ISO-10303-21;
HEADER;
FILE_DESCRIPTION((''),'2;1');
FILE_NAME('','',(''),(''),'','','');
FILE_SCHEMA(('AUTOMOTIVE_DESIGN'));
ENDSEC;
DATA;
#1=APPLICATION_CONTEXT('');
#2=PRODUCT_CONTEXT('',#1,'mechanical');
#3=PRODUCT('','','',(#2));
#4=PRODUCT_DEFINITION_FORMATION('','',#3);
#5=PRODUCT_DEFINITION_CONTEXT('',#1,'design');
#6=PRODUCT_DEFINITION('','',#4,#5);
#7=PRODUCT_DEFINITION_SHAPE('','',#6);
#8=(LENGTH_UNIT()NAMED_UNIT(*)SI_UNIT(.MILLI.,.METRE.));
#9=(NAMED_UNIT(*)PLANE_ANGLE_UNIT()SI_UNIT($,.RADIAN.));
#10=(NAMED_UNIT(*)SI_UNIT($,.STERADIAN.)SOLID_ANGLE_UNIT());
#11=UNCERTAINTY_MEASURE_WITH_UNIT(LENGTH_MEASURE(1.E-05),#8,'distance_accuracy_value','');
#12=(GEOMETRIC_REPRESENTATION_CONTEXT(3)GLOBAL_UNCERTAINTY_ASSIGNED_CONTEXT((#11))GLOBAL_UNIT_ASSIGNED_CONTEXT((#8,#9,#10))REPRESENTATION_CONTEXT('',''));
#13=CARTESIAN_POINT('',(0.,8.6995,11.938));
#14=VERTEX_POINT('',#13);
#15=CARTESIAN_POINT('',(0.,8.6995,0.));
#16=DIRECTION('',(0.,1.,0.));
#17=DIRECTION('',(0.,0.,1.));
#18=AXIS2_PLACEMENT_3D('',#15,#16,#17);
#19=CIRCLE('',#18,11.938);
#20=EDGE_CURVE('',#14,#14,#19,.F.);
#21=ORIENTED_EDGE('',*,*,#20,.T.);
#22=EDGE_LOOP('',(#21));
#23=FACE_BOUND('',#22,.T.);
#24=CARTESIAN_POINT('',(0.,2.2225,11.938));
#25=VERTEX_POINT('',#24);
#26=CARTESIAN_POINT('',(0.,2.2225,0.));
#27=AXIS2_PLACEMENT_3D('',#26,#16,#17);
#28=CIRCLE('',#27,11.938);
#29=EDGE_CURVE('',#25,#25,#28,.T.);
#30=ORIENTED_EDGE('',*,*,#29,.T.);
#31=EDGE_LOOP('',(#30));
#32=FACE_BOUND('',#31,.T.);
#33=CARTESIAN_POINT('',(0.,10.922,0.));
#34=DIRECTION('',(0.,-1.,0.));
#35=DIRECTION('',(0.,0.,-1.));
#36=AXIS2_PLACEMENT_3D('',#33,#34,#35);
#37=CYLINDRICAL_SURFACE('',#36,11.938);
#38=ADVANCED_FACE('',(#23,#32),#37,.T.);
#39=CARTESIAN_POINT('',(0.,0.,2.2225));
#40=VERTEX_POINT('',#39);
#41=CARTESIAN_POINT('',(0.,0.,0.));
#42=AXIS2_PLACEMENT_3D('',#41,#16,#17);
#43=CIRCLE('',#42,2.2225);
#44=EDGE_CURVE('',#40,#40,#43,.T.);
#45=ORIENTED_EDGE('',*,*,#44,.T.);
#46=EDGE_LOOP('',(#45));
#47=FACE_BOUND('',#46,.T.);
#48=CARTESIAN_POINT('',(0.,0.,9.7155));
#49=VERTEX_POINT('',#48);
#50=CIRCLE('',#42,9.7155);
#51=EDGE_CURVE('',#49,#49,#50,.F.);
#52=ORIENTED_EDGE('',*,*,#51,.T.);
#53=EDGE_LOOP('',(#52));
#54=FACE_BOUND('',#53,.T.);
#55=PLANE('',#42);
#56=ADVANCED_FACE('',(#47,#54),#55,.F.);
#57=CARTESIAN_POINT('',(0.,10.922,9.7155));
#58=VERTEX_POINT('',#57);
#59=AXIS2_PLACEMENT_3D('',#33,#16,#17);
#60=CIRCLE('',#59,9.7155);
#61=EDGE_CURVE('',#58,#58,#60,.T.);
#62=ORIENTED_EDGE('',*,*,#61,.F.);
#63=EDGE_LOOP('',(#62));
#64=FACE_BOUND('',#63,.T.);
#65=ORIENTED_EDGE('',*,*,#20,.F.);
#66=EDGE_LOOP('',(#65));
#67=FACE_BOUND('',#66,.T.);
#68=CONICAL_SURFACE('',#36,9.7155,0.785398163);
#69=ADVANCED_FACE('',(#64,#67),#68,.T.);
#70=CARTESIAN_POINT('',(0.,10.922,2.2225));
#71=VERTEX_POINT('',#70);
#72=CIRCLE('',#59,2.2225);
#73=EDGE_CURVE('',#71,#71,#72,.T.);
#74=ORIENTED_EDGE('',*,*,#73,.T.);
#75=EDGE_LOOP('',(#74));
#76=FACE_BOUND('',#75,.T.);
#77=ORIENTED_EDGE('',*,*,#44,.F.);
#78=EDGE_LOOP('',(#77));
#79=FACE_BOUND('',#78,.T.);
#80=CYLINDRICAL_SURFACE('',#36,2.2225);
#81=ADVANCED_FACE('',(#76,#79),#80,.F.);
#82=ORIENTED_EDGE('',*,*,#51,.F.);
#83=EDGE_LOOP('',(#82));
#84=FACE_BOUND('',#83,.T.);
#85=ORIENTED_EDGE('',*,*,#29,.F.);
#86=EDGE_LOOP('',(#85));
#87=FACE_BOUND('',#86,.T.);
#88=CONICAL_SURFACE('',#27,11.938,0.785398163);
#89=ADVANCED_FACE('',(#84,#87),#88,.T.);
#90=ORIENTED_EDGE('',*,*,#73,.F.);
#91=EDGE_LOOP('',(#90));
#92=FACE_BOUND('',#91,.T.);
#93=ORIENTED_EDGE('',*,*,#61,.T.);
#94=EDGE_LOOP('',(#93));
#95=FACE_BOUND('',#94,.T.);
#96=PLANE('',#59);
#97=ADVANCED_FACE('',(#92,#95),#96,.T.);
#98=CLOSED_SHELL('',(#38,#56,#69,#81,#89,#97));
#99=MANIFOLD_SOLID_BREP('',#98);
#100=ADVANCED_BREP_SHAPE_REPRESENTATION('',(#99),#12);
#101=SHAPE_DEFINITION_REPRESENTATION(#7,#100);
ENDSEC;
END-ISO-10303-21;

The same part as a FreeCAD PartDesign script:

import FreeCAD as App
import Part
import Sketcher

V = App.Vector
Q = App.Units.Quantity


def edges_at(feature, points):
    """Names of the edges that pass closest to the given points."""
    edges = feature.Shape.Edges
    near = lambda p: min(range(len(edges)), key=lambda i: edges[i].distToShape(Part.Vertex(*p))[0])
    return sorted({f"Edge{near(p) + 1}" for p in points})

doc = App.newDocument("Part")
body = doc.addObject("PartDesign::Body", "Body")

# Sketch on XZ plane
sketch1 = body.newObject("Sketcher::SketchObject", "Sketch")
sketch1.AttachmentSupport = (doc.getObject("XZ_Plane"), [""])
sketch1.MapMode = "FlatFace"
sketch1.addGeometry([
    Part.Circle(V(0, 0, 0), V(0, 0, 1), 11.938),
    Part.Circle(V(0, 0, 0), V(0, 0, 1), 2.2225),
], False)
sketch1.addConstraint([
    Sketcher.Constraint("Coincident", 0, 3, -1, 1),
    Sketcher.Constraint("Coincident", 1, 3, -1, 1),
    Sketcher.Constraint("Diameter", 0, Q("0.94 in")),
    Sketcher.Constraint("Diameter", 1, Q("0.175 in")),
])
pad1 = body.newObject("PartDesign::Pad", "Pad")
pad1.Profile = sketch1
pad1.Length = Q("0.43 in")
pad1.Reversed = True
doc.recompute()

chamfer = body.newObject("PartDesign::Chamfer", "Chamfer")
chamfer.Base = (pad1, edges_at(pad1, [(-11.938, 0, 0), (-11.938, 10.922, 0)]))
chamfer.Size = Q("0.0875 in")

doc.recompute()
